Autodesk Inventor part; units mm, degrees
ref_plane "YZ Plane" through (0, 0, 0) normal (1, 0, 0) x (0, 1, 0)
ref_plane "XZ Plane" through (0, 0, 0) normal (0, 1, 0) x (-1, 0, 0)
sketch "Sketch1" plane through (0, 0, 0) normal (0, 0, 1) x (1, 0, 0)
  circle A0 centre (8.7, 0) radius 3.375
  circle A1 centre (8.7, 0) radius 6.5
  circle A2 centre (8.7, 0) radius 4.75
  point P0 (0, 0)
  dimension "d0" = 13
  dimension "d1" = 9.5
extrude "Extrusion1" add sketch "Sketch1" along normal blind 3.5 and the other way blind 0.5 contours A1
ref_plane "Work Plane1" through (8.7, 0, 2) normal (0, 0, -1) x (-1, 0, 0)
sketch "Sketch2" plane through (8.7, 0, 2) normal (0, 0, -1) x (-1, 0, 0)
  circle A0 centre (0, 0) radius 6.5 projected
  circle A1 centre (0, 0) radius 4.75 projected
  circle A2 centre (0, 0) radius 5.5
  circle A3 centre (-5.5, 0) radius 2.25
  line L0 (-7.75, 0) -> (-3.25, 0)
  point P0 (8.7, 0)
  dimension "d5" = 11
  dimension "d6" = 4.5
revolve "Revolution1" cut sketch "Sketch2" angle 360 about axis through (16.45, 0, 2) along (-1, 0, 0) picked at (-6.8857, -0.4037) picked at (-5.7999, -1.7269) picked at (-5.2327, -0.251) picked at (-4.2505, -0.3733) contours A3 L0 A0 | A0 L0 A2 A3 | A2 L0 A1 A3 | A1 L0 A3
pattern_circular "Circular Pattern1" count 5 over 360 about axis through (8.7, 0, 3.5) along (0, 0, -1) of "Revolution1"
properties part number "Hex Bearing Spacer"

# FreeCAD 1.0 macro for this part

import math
import FreeCAD as App
import Part
import Sketcher
from FreeCAD import Vector

doc = App.newDocument("Part")
body = doc.addObject("PartDesign::Body", "Body")

sketch1 = body.newObject("Sketcher::SketchObject", "Sketch")
sketch1.AttachmentSupport = (doc.getObject("XY_Plane"), [""])
sketch1.MapMode = "FlatFace"
sketch1.addGeometry([
    Part.Circle(Vector(8.7, 0, 0), Vector(0, 0, 1), 6.5),
    Part.Circle(Vector(8.7, 0, 0), Vector(0, 0, 1), 4.8),
], False)
sketch1.addConstraint([
    Sketcher.Constraint("Coincident", 1, 3, 0, 3),
    Sketcher.Constraint("PointOnObject", 0, 3, -1),
    Sketcher.Constraint("Diameter", 0, 13.0),
    Sketcher.Constraint("Diameter", 1, 9.5),
    Sketcher.Constraint("DistanceX", -1, 1, 0, 3, 8.7),
])
pad1 = body.newObject("PartDesign::Pad", "Pad")
pad1.Profile = sketch1
pad1.Type = "TwoLengths"
pad1.Length = 3.5
pad1.Length2 = 0.5

sketch2 = body.newObject("Sketcher::SketchObject", "Sketch001")
sketch2.AttachmentSupport = (doc.getObject("XY_Plane"), [""])
sketch2.MapMode = "FlatFace"
sketch2.AttachmentOffset = App.Placement(Vector(0, 0, 2), App.Rotation())
sketch2.addGeometry([
    Part.ArcOfCircle(Part.Circle(Vector(14.2, 0, 0), Vector(0, 0, 1), 2.2), math.radians(180), math.radians(360)),
    Part.LineSegment(Vector(11.9, 0, 0), Vector(16.4, 0, 0)),
], False)
sketch2.addConstraint([
    Sketcher.Constraint("Coincident", 0, 1, 1, 1),
    Sketcher.Constraint("Coincident", 1, 2, 0, 2),
    Sketcher.Constraint("Horizontal", 1),
    Sketcher.Constraint("PointOnObject", 0, 3, -1),
    Sketcher.Constraint("PointOnObject", 0, 1, -1),
    Sketcher.Constraint("Radius", 0, 2.25),
    Sketcher.Constraint("DistanceX", -1, 1, 0, 3, 14.2),
])
groove = body.newObject("PartDesign::Groove", "Groove")
groove.Profile = sketch2
groove.ReferenceAxis = (sketch2, ["H_Axis"])
groove.Angle = 360
doc.recompute()

datumline = body.newObject("PartDesign::Line", "DatumLine")
datumline.Placement = App.Placement(Vector(8.7, 0, 0), App.Rotation(Vector(0, 0, 1), Vector(0, 0, 1)))
polarpattern = body.newObject("PartDesign::PolarPattern", "PolarPattern")
polarpattern.Originals = [groove]
polarpattern.Axis = (datumline, [""])
polarpattern.Angle = 360
polarpattern.Occurrences = 5
body.Tip = polarpattern

doc.recompute()
